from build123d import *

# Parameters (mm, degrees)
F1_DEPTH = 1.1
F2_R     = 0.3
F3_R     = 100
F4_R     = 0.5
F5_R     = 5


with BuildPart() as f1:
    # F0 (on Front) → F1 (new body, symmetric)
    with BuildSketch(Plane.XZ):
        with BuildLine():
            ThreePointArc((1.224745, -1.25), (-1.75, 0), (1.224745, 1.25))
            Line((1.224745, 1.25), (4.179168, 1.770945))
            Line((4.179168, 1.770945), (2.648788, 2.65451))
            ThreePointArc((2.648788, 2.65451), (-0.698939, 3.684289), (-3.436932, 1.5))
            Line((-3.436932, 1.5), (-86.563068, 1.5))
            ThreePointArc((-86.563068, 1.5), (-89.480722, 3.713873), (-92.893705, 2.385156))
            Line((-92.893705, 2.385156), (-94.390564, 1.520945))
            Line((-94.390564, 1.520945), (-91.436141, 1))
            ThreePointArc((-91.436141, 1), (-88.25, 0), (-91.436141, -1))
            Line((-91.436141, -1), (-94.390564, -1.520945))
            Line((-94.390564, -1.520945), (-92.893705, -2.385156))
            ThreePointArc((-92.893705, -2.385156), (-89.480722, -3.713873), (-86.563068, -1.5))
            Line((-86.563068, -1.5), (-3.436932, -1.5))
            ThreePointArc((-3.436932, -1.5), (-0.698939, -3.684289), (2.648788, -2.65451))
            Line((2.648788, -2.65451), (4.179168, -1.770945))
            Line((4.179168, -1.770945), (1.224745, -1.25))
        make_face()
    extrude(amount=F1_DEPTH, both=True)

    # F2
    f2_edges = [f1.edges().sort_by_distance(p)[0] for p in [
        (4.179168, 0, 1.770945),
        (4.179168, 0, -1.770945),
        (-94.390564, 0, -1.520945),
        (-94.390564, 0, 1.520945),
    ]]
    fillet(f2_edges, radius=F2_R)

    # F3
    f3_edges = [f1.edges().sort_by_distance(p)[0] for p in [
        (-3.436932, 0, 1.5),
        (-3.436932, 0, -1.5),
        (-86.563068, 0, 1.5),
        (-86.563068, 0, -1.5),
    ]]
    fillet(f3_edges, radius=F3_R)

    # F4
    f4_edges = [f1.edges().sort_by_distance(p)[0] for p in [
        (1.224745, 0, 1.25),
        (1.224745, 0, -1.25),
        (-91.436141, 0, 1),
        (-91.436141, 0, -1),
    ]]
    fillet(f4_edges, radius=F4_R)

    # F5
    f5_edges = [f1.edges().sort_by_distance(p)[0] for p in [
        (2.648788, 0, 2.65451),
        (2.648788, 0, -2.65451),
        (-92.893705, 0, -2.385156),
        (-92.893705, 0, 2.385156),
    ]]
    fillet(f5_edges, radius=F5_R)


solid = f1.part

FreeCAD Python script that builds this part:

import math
import FreeCAD as App
import Part
import Sketcher
from FreeCAD import Vector
Q = App.Units.Quantity


def edges_at(feature, points):
    """Names of the edges that pass closest to the given points."""
    edges = feature.Shape.Edges
    near = lambda p: min(range(len(edges)), key=lambda i: edges[i].distToShape(Part.Vertex(*p))[0])
    return sorted({f"Edge{near(p) + 1}" for p in points})

doc = App.newDocument("Part")
body = doc.addObject("PartDesign::Body", "Body")

sketch1 = body.newObject("Sketcher::SketchObject", "Sketch")
sketch1.AttachmentSupport = (doc.getObject("XZ_Plane"), [""])
sketch1.MapMode = "FlatFace"
sketch1.addGeometry(Part.ArcOfCircle(Part.Circle(Vector(0, 0, 0), Vector(0, 0, 1), 1.8), math.radians(46), math.radians(314)), False)
sketch1.addGeometry(Part.LineSegment(Vector(1.2, 1.2, 0), Vector(4.2, 1.8, 0)), False)
sketch1.addGeometry(Part.LineSegment(Vector(4.2, 1.8, 0), Vector(2.6, 2.7, 0)), False)
sketch1.addGeometry(Part.ArcOfCircle(Part.Circle(Vector(0, 0, 0), Vector(0, 0, 1), 3.8), math.radians(45), math.radians(156)), False)
sketch1.addGeometry(Part.LineSegment(Vector(-3.4, 1.5, 0), Vector(-86.6, 1.5, 0)), False)
sketch1.addGeometry(Part.ArcOfCircle(Part.Circle(Vector(-90, 0, 0), Vector(0, 0, 1), 3.7), math.radians(24), math.radians(141)), False)
sketch1.addGeometry(Part.LineSegment(Vector(-92.9, 2.4, 0), Vector(-94.4, 1.5, 0)), False)
sketch1.addGeometry(Part.LineSegment(Vector(-94.4, 1.5, 0), Vector(-91.4, 1, 0)), False)
sketch1.addGeometry(Part.ArcOfCircle(Part.Circle(Vector(-90, 0, 0), Vector(0, 0, 1), 1.8), math.radians(-145), math.radians(145)), False)
sketch1.addGeometry(Part.LineSegment(Vector(-91.4, -1, 0), Vector(-94.4, -1.5, 0)), False)
sketch1.addGeometry(Part.LineSegment(Vector(-94.4, -1.5, 0), Vector(-92.9, -2.4, 0)), False)
sketch1.addGeometry(Part.ArcOfCircle(Part.Circle(Vector(-90, 0, 0), Vector(0, 0, 1), 3.7), math.radians(-141), math.radians(-24)), False)
sketch1.addGeometry(Part.LineSegment(Vector(-86.6, -1.5, 0), Vector(-3.4, -1.5, 0)), False)
sketch1.addGeometry(Part.ArcOfCircle(Part.Circle(Vector(0, 0, 0), Vector(0, 0, 1), 3.8), math.radians(-156), math.radians(-45)), False)
sketch1.addGeometry(Part.LineSegment(Vector(2.6, -2.7, 0), Vector(4.2, -1.8, 0)), False)
sketch1.addGeometry(Part.LineSegment(Vector(4.2, -1.8, 0), Vector(1.2, -1.2, 0)), False)
sketch1.addConstraint(Sketcher.Constraint("Coincident", 0, 1, 1, 1))
sketch1.addConstraint(Sketcher.Constraint("Coincident", 1, 2, 2, 1))
sketch1.addConstraint(Sketcher.Constraint("Coincident", 2, 2, 3, 1))
sketch1.addConstraint(Sketcher.Constraint("Coincident", 3, 2, 4, 1))
sketch1.addConstraint(Sketcher.Constraint("Coincident", 4, 2, 5, 1))
sketch1.addConstraint(Sketcher.Constraint("Coincident", 5, 2, 6, 1))
sketch1.addConstraint(Sketcher.Constraint("Coincident", 6, 2, 7, 1))
sketch1.addConstraint(Sketcher.Constraint("Coincident", 7, 2, 8, 2))
sketch1.addConstraint(Sketcher.Constraint("Coincident", 8, 1, 9, 1))
sketch1.addConstraint(Sketcher.Constraint("Coincident", 9, 2, 10, 1))
sketch1.addConstraint(Sketcher.Constraint("Coincident", 10, 2, 11, 1))
sketch1.addConstraint(Sketcher.Constraint("Coincident", 11, 2, 12, 1))
sketch1.addConstraint(Sketcher.Constraint("Coincident", 12, 2, 13, 1))
sketch1.addConstraint(Sketcher.Constraint("Coincident", 13, 2, 14, 1))
sketch1.addConstraint(Sketcher.Constraint("Coincident", 14, 2, 15, 1))
sketch1.addConstraint(Sketcher.Constraint("Coincident", 15, 2, 0, 2))
sketch1.addConstraint(Sketcher.Constraint("Horizontal", 4))
sketch1.addConstraint(Sketcher.Constraint("Horizontal", 12))
sketch1.addConstraint(Sketcher.Constraint("Coincident", 0, 3, -1, 1))
sketch1.addConstraint(Sketcher.Constraint("Coincident", 3, 3, -1, 1))
sketch1.addConstraint(Sketcher.Constraint("Coincident", 13, 3, -1, 1))
sketch1.addConstraint(Sketcher.Constraint("Coincident", 8, 3, 5, 3))
sketch1.addConstraint(Sketcher.Constraint("Coincident", 11, 3, 5, 3))
sketch1.addConstraint(Sketcher.Constraint("Equal", 3, 5))
sketch1.addConstraint(Sketcher.Constraint("Equal", 0, 8))
sketch1.addConstraint(Sketcher.Constraint("Equal", 5, 11))
sketch1.addConstraint(Sketcher.Constraint("Equal", 11, 13))
sketch1.addConstraint(Sketcher.Constraint("Symmetric", 7, 2, 8, 1, -1))
sketch1.addConstraint(Sketcher.Constraint("Symmetric", 6, 2, 9, 2, -1))
sketch1.addConstraint(Sketcher.Constraint("Symmetric", 1, 2, 14, 2, -1))
sketch1.addConstraint(Sketcher.Constraint("Parallel", 1, 9))
sketch1.addConstraint(Sketcher.Constraint("Parallel", 2, 10))
sketch1.addConstraint(Sketcher.Constraint("Parallel", 6, 14))
sketch1.addConstraint(Sketcher.Constraint("Parallel", 7, 15))
sketch1.addConstraint(Sketcher.Constraint("Vertical", 5, 2, 10, 2))
sketch1.addConstraint(Sketcher.Constraint("Vertical", 4, 2, 11, 2))
sketch1.addConstraint(Sketcher.Constraint("Equal", 1, 7))
sketch1.addConstraint(Sketcher.Constraint("Angle", 1, Q("10.00001 deg")))
sketch1.addConstraint(Sketcher.Constraint("Angle", 2, Q("150.000009 deg")))
sketch1.addConstraint(Sketcher.Constraint("Radius", 0, Q("1.75 mm")))
sketch1.addConstraint(Sketcher.Constraint("Radius", 3, Q("3.75 mm")))
sketch1.addConstraint(Sketcher.Constraint("Distance", 1, Q("3 mm")))
sketch1.addConstraint(Sketcher.Constraint("DistanceX", 5, 3, -1, 1, Q("90 mm")))
sketch1.addConstraint(Sketcher.Constraint("DistanceY", -1, 1, 7, 2, Q("1 mm")))
sketch1.addConstraint(Sketcher.Constraint("DistanceY", 11, 2, 4, 2, Q("3 mm")))
sketch1.addConstraint(Sketcher.Constraint("DistanceY", 15, 2, 0, 1, Q("2.5 mm")))
pad1 = body.newObject("PartDesign::Pad", "Pad")
pad1.Profile = sketch1
pad1.Length = 2.2
pad1.Midplane = True
doc.recompute()

fillet = body.newObject("PartDesign::Fillet", "Fillet")
fillet.Base = (pad1, edges_at(pad1, [
    (4.179, 0, 1.771),
    (4.179, 0, -1.771),
    (-94.391, 0, -1.521),
    (-94.391, 0, 1.521),
]))
fillet.Radius = 0.3
doc.recompute()

fillet2 = body.newObject("PartDesign::Fillet", "Fillet001")
fillet2.Base = (fillet, edges_at(fillet, [
    (-3.437, 0, 1.5),
    (-3.437, 0, -1.5),
    (-86.563, 0, 1.5),
    (-86.563, 0, -1.5),
]))
fillet2.Radius = 100
doc.recompute()

fillet3 = body.newObject("PartDesign::Fillet", "Fillet002")
fillet3.Base = (fillet2, edges_at(fillet2, [
    (1.225, 0, 1.25),
    (1.225, 0, -1.25),
    (-91.436, 0, 1),
    (-91.436, 0, -1),
]))
fillet3.Radius = 0.5
doc.recompute()

fillet4 = body.newObject("PartDesign::Fillet", "Fillet003")
fillet4.Base = (fillet3, edges_at(fillet3, [
    (2.649, 0, 2.655),
    (2.649, 0, -2.655),
    (-92.894, 0, -2.385),
    (-92.894, 0, 2.385),
]))
fillet4.Radius = 5

doc.recompute()
